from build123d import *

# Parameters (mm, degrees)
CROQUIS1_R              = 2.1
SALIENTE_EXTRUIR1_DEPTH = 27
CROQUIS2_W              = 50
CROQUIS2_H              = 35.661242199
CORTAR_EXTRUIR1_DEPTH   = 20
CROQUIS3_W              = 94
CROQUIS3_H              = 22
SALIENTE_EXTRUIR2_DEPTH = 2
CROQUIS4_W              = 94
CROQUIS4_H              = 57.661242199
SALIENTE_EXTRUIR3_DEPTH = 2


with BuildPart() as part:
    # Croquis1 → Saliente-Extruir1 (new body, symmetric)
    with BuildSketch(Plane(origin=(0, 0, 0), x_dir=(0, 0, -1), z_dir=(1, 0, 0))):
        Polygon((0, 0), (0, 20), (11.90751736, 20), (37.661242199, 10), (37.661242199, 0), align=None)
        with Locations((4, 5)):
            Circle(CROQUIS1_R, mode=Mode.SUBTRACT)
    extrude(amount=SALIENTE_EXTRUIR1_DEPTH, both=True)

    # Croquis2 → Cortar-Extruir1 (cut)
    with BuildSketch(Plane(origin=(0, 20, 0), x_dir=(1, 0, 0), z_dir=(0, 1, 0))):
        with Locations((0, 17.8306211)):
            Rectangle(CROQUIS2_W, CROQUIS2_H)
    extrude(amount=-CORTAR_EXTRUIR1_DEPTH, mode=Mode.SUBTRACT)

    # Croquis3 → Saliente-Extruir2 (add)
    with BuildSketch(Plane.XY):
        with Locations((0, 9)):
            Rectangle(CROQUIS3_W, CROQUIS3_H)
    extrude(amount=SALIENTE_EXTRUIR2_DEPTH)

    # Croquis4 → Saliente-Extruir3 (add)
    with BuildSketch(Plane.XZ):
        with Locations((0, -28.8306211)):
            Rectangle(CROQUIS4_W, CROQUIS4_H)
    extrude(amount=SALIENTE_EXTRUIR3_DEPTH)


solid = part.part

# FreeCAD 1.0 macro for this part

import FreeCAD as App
import Part
import Sketcher

V = App.Vector

doc = App.newDocument("Part")
body = doc.addObject("PartDesign::Body", "Body")

# Sketch on YZ plane
sketch1 = body.newObject("Sketcher::SketchObject", "Sketch")
sketch1.AttachmentSupport = (doc.getObject("YZ_Plane"), [""])
sketch1.MapMode = "FlatFace"
sketch1.addGeometry([
    Part.LineSegment(V(20, 0, 0), V(0, 0, 0)),  # 0
    Part.LineSegment(V(0, 0, 0), V(0, -37.7, 0)),  # 1
    Part.LineSegment(V(0, -37.7, 0), V(10, -37.7, 0)),  # 2
    Part.LineSegment(V(10, -37.7, 0), V(20, -11.9, 0)),  # 3
    Part.LineSegment(V(20, -11.9, 0), V(20, 0, 0)),  # 4
    Part.Circle(V(5, -4, 0), V(0, 0, 1), 2.1),  # 5
], False)
sketch1.addConstraint([
    Sketcher.Constraint("Coincident", 0, 2, 1, 1),
    Sketcher.Constraint("Coincident", 1, 2, 2, 1),
    Sketcher.Constraint("Coincident", 2, 2, 3, 1),
    Sketcher.Constraint("Coincident", 3, 2, 4, 1),
    Sketcher.Constraint("Coincident", 4, 2, 0, 1),
    Sketcher.Constraint("Horizontal", 0),
    Sketcher.Constraint("Vertical", 1),
    Sketcher.Constraint("Horizontal", 2),
    Sketcher.Constraint("Vertical", 4),
    Sketcher.Constraint("Coincident", 0, 2, -1, 1),
    Sketcher.Constraint("Diameter", 5, 4.2),
    Sketcher.Constraint("DistanceX", 0, 2, 0, 1, 20.0),
    Sketcher.Constraint("DistanceX", 2, 1, 2, 2, 10.0),
    Sketcher.Constraint("DistanceX", -1, 1, 5, 3, 5.0),
    Sketcher.Constraint("DistanceY", 5, 3, -1, 1, 4.0),
    Sketcher.Constraint("Distance", 3, 27.627058),
    Sketcher.Constraint("DistanceY", 1, 2, 1, 1, 37.661242),
])
pad1 = body.newObject("PartDesign::Pad", "Pad")
pad1.Profile = sketch1
pad1.Length = 54
pad1.Midplane = True

# Sketch on XZ plane
sketch2 = body.newObject("Sketcher::SketchObject", "Sketch001")
sketch2.AttachmentSupport = (doc.getObject("XZ_Plane"), [""])
sketch2.MapMode = "FlatFace"
sketch2.AttachmentOffset = App.Placement(V(0, 0, -20), App.Rotation())
sketch2.addGeometry([
    Part.LineSegment(V(-25, -36, 0), V(-25, 0, 0)),
    Part.LineSegment(V(-25, 0, 0), V(25, 0, 0)),
    Part.LineSegment(V(25, 0, 0), V(25, -36, 0)),
    Part.LineSegment(V(25, -36, 0), V(-25, -36, 0)),
], False)
sketch2.addConstraint([
    Sketcher.Constraint("Coincident", 0, 2, 1, 1),
    Sketcher.Constraint("Coincident", 1, 2, 2, 1),
    Sketcher.Constraint("Coincident", 2, 2, 3, 1),
    Sketcher.Constraint("Coincident", 3, 2, 0, 1),
    Sketcher.Constraint("Vertical", 0),
    Sketcher.Constraint("Horizontal", 1),
    Sketcher.Constraint("Vertical", 2),
    Sketcher.Constraint("Horizontal", 3),
    Sketcher.Constraint("Symmetric", 0, 2, 1, 2, -1, 1),
    Sketcher.Constraint("DistanceX", 1, 1, 1, 2, 50.0),
    Sketcher.Constraint("DistanceY", 0, 1, 0, 2, 35.661242),
])
pocket1 = body.newObject("PartDesign::Pocket", "Pocket")
pocket1.Profile = sketch2
pocket1.Length = 20
pocket1.Reversed = True

# Sketch on XY plane
sketch3 = body.newObject("Sketcher::SketchObject", "Sketch002")
sketch3.AttachmentSupport = (doc.getObject("XY_Plane"), [""])
sketch3.MapMode = "FlatFace"
sketch3.addGeometry([
    Part.LineSegment(V(-47, 20, 0), V(-47, -2, 0)),
    Part.LineSegment(V(-47, -2, 0), V(47, -2, 0)),
    Part.LineSegment(V(47, -2, 0), V(47, 20, 0)),
    Part.LineSegment(V(47, 20, 0), V(-47, 20, 0)),
], False)
sketch3.addConstraint([
    Sketcher.Constraint("Coincident", 0, 2, 1, 1),
    Sketcher.Constraint("Coincident", 1, 2, 2, 1),
    Sketcher.Constraint("Coincident", 2, 2, 3, 1),
    Sketcher.Constraint("Coincident", 3, 2, 0, 1),
    Sketcher.Constraint("Vertical", 0),
    Sketcher.Constraint("Horizontal", 1),
    Sketcher.Constraint("Vertical", 2),
    Sketcher.Constraint("Horizontal", 3),
    Sketcher.Constraint("DistanceX", 1, 1, 1, 2, 94.0),
    Sketcher.Constraint("DistanceY", 0, 2, 0, 1, 22.0),
    Sketcher.Constraint("DistanceX", 0, 2, -1, 1, 47.0),
    Sketcher.Constraint("DistanceY", 0, 2, -1, 1, 2.0),
])
pad2 = body.newObject("PartDesign::Pad", "Pad001")
pad2.Profile = sketch3
pad2.Length = 2

# Sketch on XZ plane
sketch4 = body.newObject("Sketcher::SketchObject", "Sketch003")
sketch4.AttachmentSupport = (doc.getObject("XZ_Plane"), [""])
sketch4.MapMode = "FlatFace"
sketch4.addGeometry([
    Part.LineSegment(V(-47, 0, 0), V(-47, -58, 0)),
    Part.LineSegment(V(-47, -58, 0), V(47, -58, 0)),
    Part.LineSegment(V(47, -58, 0), V(47, 0, 0)),
    Part.LineSegment(V(47, 0, 0), V(-47, 0, 0)),
], False)
sketch4.addConstraint([
    Sketcher.Constraint("Coincident", 0, 2, 1, 1),
    Sketcher.Constraint("Coincident", 1, 2, 2, 1),
    Sketcher.Constraint("Coincident", 2, 2, 3, 1),
    Sketcher.Constraint("Coincident", 3, 2, 0, 1),
    Sketcher.Constraint("Vertical", 0),
    Sketcher.Constraint("Horizontal", 1),
    Sketcher.Constraint("Vertical", 2),
    Sketcher.Constraint("Horizontal", 3),
    Sketcher.Constraint("Symmetric", 2, 2, 3, 2, -1, 1),
    Sketcher.Constraint("DistanceX", 1, 1, 1, 2, 94.0),
    Sketcher.Constraint("DistanceY", 0, 2, 0, 1, 57.661242),
])
pad3 = body.newObject("PartDesign::Pad", "Pad002")
pad3.Profile = sketch4
pad3.Length = 2

doc.recompute()
